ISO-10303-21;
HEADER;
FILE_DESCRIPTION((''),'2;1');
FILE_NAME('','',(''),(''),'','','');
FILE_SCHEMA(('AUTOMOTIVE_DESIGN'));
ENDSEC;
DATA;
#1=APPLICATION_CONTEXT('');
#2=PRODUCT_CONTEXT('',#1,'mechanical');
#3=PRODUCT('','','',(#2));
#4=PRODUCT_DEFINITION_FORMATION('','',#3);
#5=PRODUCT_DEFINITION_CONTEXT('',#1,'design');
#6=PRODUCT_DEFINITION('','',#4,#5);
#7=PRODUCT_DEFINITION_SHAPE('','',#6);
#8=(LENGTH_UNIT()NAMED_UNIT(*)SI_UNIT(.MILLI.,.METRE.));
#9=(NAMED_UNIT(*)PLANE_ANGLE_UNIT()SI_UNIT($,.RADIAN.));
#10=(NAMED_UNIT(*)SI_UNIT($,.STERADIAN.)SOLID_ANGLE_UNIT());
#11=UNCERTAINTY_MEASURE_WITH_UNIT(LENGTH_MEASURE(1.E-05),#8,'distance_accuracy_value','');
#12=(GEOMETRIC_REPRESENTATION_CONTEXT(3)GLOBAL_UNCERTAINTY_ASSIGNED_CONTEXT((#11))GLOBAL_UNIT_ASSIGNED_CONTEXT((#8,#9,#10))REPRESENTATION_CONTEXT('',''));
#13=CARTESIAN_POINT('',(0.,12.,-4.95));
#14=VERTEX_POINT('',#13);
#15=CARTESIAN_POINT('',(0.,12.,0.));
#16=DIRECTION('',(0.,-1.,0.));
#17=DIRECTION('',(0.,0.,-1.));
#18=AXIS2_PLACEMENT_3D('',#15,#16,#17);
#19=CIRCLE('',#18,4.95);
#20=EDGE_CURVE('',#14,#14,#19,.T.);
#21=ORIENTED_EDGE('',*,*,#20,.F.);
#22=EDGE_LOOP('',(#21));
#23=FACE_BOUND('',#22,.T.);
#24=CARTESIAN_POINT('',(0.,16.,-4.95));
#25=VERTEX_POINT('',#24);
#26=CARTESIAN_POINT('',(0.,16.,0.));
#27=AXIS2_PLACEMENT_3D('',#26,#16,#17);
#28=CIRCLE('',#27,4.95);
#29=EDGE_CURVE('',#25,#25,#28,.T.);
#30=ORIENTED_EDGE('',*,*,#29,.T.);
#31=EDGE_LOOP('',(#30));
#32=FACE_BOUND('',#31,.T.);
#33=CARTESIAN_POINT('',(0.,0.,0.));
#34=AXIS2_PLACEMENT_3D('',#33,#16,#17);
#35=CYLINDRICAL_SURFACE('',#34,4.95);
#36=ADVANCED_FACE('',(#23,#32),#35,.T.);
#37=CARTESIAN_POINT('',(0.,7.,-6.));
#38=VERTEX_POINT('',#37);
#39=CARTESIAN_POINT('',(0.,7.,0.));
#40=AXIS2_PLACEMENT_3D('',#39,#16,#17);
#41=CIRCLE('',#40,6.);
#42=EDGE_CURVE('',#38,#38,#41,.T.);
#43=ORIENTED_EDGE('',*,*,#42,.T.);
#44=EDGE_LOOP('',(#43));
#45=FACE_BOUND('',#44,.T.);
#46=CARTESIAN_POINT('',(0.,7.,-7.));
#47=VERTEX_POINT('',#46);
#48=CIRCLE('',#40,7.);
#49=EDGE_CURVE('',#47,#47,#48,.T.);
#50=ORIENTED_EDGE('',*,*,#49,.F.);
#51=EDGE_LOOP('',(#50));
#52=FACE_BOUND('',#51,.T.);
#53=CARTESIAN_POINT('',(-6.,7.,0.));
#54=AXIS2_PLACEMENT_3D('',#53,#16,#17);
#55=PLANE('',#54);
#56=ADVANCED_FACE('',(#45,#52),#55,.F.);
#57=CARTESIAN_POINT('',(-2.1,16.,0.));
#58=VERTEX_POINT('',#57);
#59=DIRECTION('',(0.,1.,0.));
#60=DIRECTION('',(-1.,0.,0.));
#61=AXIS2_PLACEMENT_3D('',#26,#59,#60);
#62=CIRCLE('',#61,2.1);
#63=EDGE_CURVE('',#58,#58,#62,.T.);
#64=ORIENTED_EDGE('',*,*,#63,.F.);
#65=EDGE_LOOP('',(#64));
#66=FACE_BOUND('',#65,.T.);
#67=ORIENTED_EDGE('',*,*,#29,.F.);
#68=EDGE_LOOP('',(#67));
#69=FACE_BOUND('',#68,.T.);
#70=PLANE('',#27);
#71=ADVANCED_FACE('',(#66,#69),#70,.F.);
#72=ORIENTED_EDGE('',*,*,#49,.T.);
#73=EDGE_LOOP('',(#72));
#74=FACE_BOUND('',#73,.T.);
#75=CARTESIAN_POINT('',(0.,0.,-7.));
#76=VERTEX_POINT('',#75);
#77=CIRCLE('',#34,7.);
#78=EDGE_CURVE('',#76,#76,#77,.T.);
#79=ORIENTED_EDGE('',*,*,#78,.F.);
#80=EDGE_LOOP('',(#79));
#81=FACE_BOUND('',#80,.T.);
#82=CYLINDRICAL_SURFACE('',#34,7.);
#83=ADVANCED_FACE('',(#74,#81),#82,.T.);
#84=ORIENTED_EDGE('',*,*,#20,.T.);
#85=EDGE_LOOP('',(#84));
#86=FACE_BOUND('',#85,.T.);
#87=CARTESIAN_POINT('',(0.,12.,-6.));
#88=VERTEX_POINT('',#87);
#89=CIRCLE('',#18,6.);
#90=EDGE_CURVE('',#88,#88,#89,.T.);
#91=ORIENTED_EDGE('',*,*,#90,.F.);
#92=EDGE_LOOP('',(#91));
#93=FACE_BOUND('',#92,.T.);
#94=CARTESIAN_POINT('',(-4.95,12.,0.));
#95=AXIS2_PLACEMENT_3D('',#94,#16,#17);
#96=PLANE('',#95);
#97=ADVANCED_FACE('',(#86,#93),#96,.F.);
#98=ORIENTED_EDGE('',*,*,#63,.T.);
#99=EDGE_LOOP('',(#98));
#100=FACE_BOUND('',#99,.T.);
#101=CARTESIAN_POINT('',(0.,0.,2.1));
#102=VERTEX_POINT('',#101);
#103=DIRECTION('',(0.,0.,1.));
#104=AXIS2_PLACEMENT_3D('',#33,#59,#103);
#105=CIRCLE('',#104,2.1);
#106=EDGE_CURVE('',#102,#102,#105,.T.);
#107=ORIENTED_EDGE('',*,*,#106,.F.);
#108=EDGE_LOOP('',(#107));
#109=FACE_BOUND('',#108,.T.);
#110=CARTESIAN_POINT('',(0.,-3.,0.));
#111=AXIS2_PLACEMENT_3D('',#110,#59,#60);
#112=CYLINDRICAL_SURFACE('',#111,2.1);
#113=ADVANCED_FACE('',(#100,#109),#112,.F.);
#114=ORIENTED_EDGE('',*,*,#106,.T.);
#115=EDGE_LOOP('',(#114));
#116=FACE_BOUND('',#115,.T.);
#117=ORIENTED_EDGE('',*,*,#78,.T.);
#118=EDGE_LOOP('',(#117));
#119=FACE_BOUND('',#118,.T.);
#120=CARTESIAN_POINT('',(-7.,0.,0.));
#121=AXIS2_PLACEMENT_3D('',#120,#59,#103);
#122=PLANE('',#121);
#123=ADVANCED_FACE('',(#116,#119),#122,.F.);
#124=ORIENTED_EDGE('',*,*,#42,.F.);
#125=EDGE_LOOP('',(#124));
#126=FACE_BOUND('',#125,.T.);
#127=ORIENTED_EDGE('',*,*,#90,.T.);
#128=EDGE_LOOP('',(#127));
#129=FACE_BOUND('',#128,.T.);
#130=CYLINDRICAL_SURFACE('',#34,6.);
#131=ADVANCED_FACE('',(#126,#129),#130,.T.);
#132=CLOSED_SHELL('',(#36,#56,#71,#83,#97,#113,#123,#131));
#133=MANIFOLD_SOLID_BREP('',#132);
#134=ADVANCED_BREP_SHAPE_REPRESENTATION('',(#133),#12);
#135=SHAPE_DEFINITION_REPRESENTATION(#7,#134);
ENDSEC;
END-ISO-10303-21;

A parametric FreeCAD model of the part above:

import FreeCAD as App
import Part
import Sketcher
from FreeCAD import Vector

doc = App.newDocument("Part")
body = doc.addObject("PartDesign::Body", "Body")

# Sketch on XY plane
sketch1 = body.newObject("Sketcher::SketchObject", "Sketch")
sketch1.AttachmentSupport = (doc.getObject("XY_Plane"), [""])
sketch1.MapMode = "FlatFace"
sketch1.addGeometry([
    Part.LineSegment(Vector(0, 0, 0), Vector(0, 16, 0)),  # 0
    Part.LineSegment(Vector(0, 16, 0), Vector(-5, 16, 0)),  # 1
    Part.LineSegment(Vector(-5, 16, 0), Vector(-5, 12, 0)),  # 2
    Part.LineSegment(Vector(-5, 12, 0), Vector(-6, 12, 0)),  # 3
    Part.LineSegment(Vector(-6, 12, 0), Vector(-6, 7, 0)),  # 4
    Part.LineSegment(Vector(-6, 7, 0), Vector(-7, 7, 0)),  # 5
    Part.LineSegment(Vector(-7, 7, 0), Vector(-7, 0, 0)),  # 6
    Part.LineSegment(Vector(-7, 0, 0), Vector(0, 0, 0)),  # 7
], False)
sketch1.addConstraint([
    Sketcher.Constraint("Coincident", 0, 2, 1, 1),
    Sketcher.Constraint("Coincident", 1, 2, 2, 1),
    Sketcher.Constraint("Coincident", 2, 2, 3, 1),
    Sketcher.Constraint("Coincident", 3, 2, 4, 1),
    Sketcher.Constraint("Coincident", 4, 2, 5, 1),
    Sketcher.Constraint("Coincident", 5, 2, 6, 1),
    Sketcher.Constraint("Coincident", 6, 2, 7, 1),
    Sketcher.Constraint("Coincident", 7, 2, 0, 1),
    Sketcher.Constraint("Vertical", 0),
    Sketcher.Constraint("Horizontal", 1),
    Sketcher.Constraint("Vertical", 2),
    Sketcher.Constraint("Horizontal", 3),
    Sketcher.Constraint("Vertical", 4),
    Sketcher.Constraint("Horizontal", 5),
    Sketcher.Constraint("Vertical", 6),
    Sketcher.Constraint("Horizontal", 7),
    Sketcher.Constraint("Coincident", 7, 2, -1, 1),
    Sketcher.Constraint("Equal", 7, 6),
    Sketcher.Constraint("DistanceX", 5, 2, 5, 1, 1.0),
    Sketcher.Constraint("DistanceX", 7, 1, 7, 2, 7.0),
    Sketcher.Constraint("DistanceY", 0, 1, 0, 2, 16.0),
    Sketcher.Constraint("DistanceY", 2, 2, 2, 1, 4.0),
    Sketcher.Constraint("DistanceX", 1, 2, 1, 1, 4.95),
])
revolution = body.newObject("PartDesign::Revolution", "Revolution")
revolution.Profile = sketch1
revolution.ReferenceAxis = (sketch1, ["V_Axis"])
revolution.Angle = 360

# Sketch on XZ plane
sketch2 = body.newObject("Sketcher::SketchObject", "Sketch001")
sketch2.AttachmentSupport = (doc.getObject("XZ_Plane"), [""])
sketch2.MapMode = "FlatFace"
sketch2.AttachmentOffset = App.Placement(Vector(0, 0, -16), App.Rotation())
sketch2.addGeometry(Part.Circle(Vector(0, 0, 0), Vector(0, 0, 1), 2.1), False)
sketch2.addConstraint([
    Sketcher.Constraint("Coincident", 0, 3, -1, 1),
    Sketcher.Constraint("Diameter", 0, 4.2),
])
pocket1 = body.newObject("PartDesign::Pocket", "Pocket")
pocket1.Profile = sketch2
pocket1.Length = 19
pocket1.Reversed = True

doc.recompute()
